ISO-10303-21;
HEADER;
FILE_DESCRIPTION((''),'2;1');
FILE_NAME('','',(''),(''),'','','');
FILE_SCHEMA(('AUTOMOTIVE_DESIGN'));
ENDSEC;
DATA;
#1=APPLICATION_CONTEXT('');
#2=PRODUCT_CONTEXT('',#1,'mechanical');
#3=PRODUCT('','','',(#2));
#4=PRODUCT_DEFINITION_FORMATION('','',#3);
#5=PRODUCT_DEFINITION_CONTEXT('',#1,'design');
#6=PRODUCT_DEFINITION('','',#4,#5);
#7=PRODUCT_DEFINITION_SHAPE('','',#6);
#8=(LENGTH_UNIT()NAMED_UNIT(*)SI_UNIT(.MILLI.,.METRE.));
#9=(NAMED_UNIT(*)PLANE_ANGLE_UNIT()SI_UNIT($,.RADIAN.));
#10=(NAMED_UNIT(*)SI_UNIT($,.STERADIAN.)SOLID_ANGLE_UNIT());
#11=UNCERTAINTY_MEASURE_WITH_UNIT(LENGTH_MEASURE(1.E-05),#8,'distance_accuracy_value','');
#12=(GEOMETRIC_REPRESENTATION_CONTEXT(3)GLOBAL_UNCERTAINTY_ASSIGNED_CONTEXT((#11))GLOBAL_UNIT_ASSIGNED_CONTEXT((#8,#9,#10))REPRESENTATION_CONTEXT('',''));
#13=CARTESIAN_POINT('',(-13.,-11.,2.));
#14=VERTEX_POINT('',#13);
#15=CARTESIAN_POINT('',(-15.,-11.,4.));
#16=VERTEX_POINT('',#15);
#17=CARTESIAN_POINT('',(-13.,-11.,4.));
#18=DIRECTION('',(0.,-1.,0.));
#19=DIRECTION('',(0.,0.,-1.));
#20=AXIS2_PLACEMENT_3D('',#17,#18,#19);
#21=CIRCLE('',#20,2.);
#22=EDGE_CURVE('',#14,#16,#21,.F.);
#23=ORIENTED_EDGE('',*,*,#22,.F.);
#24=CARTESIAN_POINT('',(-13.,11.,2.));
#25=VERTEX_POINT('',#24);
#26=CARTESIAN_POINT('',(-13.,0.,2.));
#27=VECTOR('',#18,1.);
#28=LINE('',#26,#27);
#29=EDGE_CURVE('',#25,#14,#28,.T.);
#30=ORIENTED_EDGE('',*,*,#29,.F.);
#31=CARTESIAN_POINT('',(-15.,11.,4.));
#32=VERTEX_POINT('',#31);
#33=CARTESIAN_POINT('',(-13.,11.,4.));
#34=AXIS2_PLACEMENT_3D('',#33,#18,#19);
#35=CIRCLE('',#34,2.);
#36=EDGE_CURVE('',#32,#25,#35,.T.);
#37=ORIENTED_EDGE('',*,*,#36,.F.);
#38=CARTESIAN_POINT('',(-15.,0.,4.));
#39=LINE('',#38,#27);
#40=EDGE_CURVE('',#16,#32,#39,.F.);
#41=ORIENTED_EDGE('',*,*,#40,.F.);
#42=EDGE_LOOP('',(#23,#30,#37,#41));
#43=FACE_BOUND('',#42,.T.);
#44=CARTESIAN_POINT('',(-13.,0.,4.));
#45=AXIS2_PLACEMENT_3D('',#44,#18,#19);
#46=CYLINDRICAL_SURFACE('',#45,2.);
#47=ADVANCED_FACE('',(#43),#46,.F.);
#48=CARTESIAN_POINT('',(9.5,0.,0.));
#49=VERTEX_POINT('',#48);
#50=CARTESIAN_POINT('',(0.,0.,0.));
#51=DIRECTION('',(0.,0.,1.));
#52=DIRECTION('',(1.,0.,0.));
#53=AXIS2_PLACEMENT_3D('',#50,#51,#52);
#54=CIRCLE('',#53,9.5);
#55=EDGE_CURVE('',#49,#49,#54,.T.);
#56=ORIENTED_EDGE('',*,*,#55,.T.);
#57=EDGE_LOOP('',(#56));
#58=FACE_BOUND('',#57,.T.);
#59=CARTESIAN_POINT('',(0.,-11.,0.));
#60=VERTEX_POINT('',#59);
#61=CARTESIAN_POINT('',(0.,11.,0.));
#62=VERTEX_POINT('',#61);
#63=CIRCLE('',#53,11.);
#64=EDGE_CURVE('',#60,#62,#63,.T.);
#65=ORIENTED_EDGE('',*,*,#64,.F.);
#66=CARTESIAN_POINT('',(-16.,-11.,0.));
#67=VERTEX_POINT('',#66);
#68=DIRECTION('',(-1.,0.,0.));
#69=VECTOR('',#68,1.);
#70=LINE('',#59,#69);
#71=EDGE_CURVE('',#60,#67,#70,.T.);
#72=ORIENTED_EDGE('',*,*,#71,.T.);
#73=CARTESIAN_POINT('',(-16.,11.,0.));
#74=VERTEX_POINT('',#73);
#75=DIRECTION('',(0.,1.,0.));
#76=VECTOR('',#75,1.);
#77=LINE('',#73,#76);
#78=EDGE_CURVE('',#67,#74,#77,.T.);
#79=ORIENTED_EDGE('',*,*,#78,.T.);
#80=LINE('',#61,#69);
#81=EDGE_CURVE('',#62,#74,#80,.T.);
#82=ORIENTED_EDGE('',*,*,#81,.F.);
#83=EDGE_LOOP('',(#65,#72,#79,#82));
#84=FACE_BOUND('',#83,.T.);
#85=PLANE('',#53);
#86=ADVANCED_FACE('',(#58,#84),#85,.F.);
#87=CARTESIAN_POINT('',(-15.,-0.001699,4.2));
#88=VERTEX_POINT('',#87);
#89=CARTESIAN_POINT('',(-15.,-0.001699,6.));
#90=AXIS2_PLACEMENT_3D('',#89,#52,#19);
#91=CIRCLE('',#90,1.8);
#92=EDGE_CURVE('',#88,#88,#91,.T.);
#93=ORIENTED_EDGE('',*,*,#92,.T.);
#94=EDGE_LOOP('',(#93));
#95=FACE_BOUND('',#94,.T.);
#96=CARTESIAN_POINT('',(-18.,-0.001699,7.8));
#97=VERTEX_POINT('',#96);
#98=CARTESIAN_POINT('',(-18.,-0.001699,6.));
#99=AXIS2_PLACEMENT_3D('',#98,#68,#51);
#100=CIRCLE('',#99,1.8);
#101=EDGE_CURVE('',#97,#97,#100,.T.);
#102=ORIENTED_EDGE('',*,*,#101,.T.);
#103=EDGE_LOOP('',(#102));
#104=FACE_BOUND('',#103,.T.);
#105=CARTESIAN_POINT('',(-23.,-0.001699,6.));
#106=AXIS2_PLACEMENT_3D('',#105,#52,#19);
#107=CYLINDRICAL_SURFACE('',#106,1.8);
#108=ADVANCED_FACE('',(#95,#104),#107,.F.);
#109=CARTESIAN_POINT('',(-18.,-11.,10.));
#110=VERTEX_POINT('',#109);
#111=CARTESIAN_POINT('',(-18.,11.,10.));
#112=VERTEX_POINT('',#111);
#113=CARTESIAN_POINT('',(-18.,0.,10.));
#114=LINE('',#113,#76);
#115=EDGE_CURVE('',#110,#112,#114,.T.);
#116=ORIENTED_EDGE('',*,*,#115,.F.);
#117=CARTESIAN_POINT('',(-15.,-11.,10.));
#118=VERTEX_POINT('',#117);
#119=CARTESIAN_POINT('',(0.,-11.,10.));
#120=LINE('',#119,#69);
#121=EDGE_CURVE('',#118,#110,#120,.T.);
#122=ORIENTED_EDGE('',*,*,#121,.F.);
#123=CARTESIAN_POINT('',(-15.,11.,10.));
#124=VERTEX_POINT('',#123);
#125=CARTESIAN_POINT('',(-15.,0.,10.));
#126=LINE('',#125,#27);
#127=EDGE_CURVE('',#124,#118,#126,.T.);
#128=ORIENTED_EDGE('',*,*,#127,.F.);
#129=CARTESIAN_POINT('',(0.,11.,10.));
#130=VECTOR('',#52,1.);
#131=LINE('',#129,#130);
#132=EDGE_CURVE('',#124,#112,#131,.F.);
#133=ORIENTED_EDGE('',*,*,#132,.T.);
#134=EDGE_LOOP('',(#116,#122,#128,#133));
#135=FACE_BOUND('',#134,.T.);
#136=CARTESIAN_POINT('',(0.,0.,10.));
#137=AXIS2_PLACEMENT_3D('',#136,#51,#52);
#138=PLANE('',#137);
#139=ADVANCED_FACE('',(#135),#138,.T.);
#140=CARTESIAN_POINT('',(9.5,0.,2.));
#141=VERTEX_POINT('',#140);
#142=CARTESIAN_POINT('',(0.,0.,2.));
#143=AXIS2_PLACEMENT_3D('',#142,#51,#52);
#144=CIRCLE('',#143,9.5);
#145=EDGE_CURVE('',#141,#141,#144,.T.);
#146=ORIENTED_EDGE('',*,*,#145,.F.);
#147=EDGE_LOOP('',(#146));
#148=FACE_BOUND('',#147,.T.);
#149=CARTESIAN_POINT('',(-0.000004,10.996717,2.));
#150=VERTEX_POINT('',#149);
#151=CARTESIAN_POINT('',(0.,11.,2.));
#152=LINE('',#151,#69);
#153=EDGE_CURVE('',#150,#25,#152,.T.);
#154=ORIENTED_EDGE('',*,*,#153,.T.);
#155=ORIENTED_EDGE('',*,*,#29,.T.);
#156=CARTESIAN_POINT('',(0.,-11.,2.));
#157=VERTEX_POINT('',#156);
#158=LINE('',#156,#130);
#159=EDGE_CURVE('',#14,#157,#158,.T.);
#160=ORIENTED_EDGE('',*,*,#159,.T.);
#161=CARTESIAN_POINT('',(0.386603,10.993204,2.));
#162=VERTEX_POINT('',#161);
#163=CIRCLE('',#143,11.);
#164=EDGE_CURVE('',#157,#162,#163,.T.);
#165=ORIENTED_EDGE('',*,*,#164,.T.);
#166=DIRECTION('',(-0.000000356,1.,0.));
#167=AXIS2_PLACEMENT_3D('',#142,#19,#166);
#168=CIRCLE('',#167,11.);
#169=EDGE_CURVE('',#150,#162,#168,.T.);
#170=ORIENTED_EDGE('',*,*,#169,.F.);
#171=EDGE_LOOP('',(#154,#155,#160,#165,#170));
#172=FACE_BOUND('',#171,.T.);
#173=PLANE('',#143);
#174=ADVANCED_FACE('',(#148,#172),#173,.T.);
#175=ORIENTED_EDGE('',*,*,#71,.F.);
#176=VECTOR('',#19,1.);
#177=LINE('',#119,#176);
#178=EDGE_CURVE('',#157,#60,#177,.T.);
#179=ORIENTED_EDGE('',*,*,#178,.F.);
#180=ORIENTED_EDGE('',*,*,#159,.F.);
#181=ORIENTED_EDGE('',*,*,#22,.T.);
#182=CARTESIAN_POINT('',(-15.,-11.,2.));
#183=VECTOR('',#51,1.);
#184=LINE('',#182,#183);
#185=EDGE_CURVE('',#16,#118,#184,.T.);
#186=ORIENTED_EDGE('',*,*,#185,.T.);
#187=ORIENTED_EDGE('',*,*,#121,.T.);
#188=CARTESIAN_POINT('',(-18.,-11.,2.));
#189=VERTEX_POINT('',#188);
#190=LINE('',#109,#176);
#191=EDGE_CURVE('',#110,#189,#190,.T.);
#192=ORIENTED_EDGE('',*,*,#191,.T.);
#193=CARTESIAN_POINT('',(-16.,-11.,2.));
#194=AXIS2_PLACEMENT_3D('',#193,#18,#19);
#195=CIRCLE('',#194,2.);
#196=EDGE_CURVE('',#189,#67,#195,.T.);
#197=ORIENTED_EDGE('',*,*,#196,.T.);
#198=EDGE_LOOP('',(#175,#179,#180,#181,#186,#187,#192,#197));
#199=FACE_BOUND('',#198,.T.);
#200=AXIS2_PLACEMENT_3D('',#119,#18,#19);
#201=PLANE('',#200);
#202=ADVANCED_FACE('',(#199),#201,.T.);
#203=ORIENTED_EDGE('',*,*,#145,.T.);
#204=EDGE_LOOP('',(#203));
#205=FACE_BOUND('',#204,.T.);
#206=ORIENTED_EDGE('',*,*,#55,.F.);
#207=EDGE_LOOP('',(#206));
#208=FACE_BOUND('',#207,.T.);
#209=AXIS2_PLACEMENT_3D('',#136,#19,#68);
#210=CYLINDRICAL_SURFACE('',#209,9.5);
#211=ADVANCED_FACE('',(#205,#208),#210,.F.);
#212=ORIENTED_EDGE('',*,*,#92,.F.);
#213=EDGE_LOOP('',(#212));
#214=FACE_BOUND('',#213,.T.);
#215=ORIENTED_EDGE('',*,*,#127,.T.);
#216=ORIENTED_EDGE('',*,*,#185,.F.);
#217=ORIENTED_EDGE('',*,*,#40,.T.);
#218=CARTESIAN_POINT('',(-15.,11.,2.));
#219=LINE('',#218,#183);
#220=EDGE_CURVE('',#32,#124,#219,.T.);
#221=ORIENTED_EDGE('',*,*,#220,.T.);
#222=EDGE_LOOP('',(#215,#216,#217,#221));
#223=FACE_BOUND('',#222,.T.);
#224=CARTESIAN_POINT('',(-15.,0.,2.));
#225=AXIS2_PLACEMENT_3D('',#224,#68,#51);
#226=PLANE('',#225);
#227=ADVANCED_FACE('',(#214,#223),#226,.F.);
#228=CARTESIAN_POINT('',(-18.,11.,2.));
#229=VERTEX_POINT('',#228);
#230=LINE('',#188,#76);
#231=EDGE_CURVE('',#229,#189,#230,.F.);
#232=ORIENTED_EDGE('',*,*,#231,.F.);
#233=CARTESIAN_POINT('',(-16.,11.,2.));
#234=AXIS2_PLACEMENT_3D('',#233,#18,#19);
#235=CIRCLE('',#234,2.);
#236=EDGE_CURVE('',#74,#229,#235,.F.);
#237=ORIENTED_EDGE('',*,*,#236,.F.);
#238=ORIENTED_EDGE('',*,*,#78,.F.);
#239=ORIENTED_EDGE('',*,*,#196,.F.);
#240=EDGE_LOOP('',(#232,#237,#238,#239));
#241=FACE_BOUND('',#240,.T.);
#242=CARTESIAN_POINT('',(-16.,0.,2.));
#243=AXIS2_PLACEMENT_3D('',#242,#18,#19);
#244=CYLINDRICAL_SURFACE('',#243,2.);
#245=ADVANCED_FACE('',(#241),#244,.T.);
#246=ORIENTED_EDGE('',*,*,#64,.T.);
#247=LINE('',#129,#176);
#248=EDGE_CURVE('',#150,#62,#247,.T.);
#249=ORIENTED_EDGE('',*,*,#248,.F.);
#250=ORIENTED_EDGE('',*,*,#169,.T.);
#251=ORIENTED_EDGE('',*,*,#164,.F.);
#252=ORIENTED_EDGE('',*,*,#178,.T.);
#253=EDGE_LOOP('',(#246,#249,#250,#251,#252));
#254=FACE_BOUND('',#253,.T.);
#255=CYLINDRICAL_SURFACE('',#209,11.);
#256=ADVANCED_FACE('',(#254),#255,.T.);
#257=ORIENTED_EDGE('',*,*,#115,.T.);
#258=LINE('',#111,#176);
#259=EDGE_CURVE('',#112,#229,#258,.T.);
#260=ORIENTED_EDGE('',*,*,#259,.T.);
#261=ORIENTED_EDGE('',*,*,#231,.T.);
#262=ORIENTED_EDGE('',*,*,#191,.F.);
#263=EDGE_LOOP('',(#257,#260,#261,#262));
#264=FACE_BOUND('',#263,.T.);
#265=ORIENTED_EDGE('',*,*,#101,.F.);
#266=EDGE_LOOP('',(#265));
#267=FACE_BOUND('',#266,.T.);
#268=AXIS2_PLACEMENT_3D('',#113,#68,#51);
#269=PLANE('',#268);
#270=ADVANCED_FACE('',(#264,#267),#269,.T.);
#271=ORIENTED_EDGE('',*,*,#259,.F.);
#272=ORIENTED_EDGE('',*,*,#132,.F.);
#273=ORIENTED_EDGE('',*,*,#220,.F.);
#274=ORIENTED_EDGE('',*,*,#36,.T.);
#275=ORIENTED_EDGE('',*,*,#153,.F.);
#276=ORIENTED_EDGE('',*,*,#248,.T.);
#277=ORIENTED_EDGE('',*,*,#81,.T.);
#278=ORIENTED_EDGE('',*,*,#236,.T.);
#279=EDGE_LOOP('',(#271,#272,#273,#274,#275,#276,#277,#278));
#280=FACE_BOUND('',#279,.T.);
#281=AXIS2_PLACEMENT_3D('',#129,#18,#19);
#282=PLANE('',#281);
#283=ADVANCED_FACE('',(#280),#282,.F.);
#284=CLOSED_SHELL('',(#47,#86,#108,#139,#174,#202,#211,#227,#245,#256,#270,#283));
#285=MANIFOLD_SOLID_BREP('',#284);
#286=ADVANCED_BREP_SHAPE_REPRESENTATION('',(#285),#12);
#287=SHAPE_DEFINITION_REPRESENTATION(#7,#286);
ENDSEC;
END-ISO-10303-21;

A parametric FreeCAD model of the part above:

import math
import FreeCAD as App
import Part
import Sketcher


def edges_at(feature, points):
    """Names of the edges that pass closest to the given points."""
    edges = feature.Shape.Edges
    near = lambda p: min(range(len(edges)), key=lambda i: edges[i].distToShape(Part.Vertex(*p))[0])
    return sorted({f"Edge{near(p) + 1}" for p in points})

doc = App.newDocument("Part")
body = doc.addObject("PartDesign::Body", "Body")

sketch1 = body.newObject("Sketcher::SketchObject", "Sketch")
sketch1.AttachmentSupport = (doc.getObject("XY_Plane"), [""])
sketch1.MapMode = "FlatFace"
sketch1.addGeometry(Part.LineSegment(App.Vector(-18, -11, 0), App.Vector(0, -11, 0)), False)
sketch1.addGeometry(Part.ArcOfCircle(Part.Circle(App.Vector(0, 0, 0), App.Vector(0, 0, 1), 11), math.radians(-90), math.radians(0)), False)
sketch1.addGeometry(Part.ArcOfCircle(Part.Circle(App.Vector(0, 0, 0), App.Vector(0, 0, 1), 11), math.radians(0), math.radians(90)), False)
sketch1.addGeometry(Part.LineSegment(App.Vector(0, 11, 0), App.Vector(-18, 11, 0)), False)
sketch1.addGeometry(Part.LineSegment(App.Vector(-18, 11, 0), App.Vector(-18, -11, 0)), False)
sketch1.addGeometry(Part.ArcOfCircle(Part.Circle(App.Vector(0, 0, 0), App.Vector(0, 0, 1), 9.5), math.radians(0), math.radians(90)), False)
sketch1.addGeometry(Part.ArcOfCircle(Part.Circle(App.Vector(0, 0, 0), App.Vector(0, 0, 1), 9.5), math.radians(-90), math.radians(0)), False)
sketch1.addGeometry(Part.ArcOfCircle(Part.Circle(App.Vector(0, 0, 0), App.Vector(0, 0, 1), 9.5), math.radians(-180), math.radians(-90)), False)
sketch1.addGeometry(Part.ArcOfCircle(Part.Circle(App.Vector(0, 0, 0), App.Vector(0, 0, 1), 9.5), math.radians(90), math.radians(180)), False)
sketch1.addConstraint(Sketcher.Constraint("Tangent", 0, 2, 1, 1))
sketch1.addConstraint(Sketcher.Constraint("Tangent", 1, 2, 2, 1))
sketch1.addConstraint(Sketcher.Constraint("Tangent", 2, 2, 3, 1))
sketch1.addConstraint(Sketcher.Constraint("Coincident", 3, 2, 4, 1))
sketch1.addConstraint(Sketcher.Constraint("Coincident", 4, 2, 0, 1))
sketch1.addConstraint(Sketcher.Constraint("Tangent", 5, 1, 6, 2))
sketch1.addConstraint(Sketcher.Constraint("Tangent", 6, 1, 7, 2))
sketch1.addConstraint(Sketcher.Constraint("Tangent", 7, 1, 8, 2))
sketch1.addConstraint(Sketcher.Constraint("Tangent", 8, 1, 5, 2))
sketch1.addConstraint(Sketcher.Constraint("Horizontal", 0))
sketch1.addConstraint(Sketcher.Constraint("Horizontal", 3))
sketch1.addConstraint(Sketcher.Constraint("Vertical", 4))
sketch1.addConstraint(Sketcher.Constraint("Coincident", 1, 3, -1, 1))
sketch1.addConstraint(Sketcher.Constraint("Coincident", 5, 3, -1, 1))
sketch1.addConstraint(Sketcher.Constraint("Equal", 1, 2))
sketch1.addConstraint(Sketcher.Constraint("Equal", 5, 6))
sketch1.addConstraint(Sketcher.Constraint("PointOnObject", 1, 2, -1))
sketch1.addConstraint(Sketcher.Constraint("PointOnObject", 5, 1, -1))
sketch1.addConstraint(Sketcher.Constraint("PointOnObject", 6, 1, -2))
sketch1.addConstraint(Sketcher.Constraint("PointOnObject", 7, 1, -1))
sketch1.addConstraint(Sketcher.Constraint("PointOnObject", 8, 1, -2))
sketch1.addConstraint(Sketcher.Constraint("Radius", 1, 11.0))
sketch1.addConstraint(Sketcher.Constraint("Radius", 5, 9.5))
sketch1.addConstraint(Sketcher.Constraint("DistanceX", 0, 1, 0, 2, 18.0))
pad1 = body.newObject("PartDesign::Pad", "Pad")
pad1.Profile = sketch1
pad1.Length = 10

sketch2 = body.newObject("Sketcher::SketchObject", "Sketch001")
sketch2.AttachmentSupport = (doc.getObject("XY_Plane"), [""])
sketch2.MapMode = "FlatFace"
sketch2.AttachmentOffset = App.Placement(App.Vector(0, 0, 2), App.Rotation())
sketch2.addGeometry(Part.LineSegment(App.Vector(-15, -11, 0), App.Vector(0, -11, 0)), False)
sketch2.addGeometry(Part.ArcOfCircle(Part.Circle(App.Vector(0, 0, 0), App.Vector(0, 0, 1), 11), math.radians(-90), math.radians(90)), False)
sketch2.addGeometry(Part.LineSegment(App.Vector(0, 11, 0), App.Vector(-15, 11, 0)), False)
sketch2.addGeometry(Part.LineSegment(App.Vector(-15, 11, 0), App.Vector(-15, -11, 0)), False)
sketch2.addGeometry(Part.Circle(App.Vector(0, 0, 0), App.Vector(0, 0, 1), 9.5), False)
sketch2.addConstraint(Sketcher.Constraint("Tangent", 0, 2, 1, 1))
sketch2.addConstraint(Sketcher.Constraint("Tangent", 1, 2, 2, 1))
sketch2.addConstraint(Sketcher.Constraint("Coincident", 2, 2, 3, 1))
sketch2.addConstraint(Sketcher.Constraint("Coincident", 3, 2, 0, 1))
sketch2.addConstraint(Sketcher.Constraint("Horizontal", 0))
sketch2.addConstraint(Sketcher.Constraint("Horizontal", 2))
sketch2.addConstraint(Sketcher.Constraint("Vertical", 3))
sketch2.addConstraint(Sketcher.Constraint("Coincident", 1, 3, -1, 1))
sketch2.addConstraint(Sketcher.Constraint("Coincident", 4, 3, -1, 1))
sketch2.addConstraint(Sketcher.Constraint("Diameter", 4, 19.0))
sketch2.addConstraint(Sketcher.Constraint("Radius", 1, 11.0))
sketch2.addConstraint(Sketcher.Constraint("DistanceX", 0, 1, 0, 2, 15.0))
pocket1 = body.newObject("PartDesign::Pocket", "Pocket")
pocket1.Profile = sketch2
pocket1.Length = 8
pocket1.Reversed = True

sketch3 = body.newObject("Sketcher::SketchObject", "Sketch002")
sketch3.AttachmentSupport = (doc.getObject("YZ_Plane"), [""])
sketch3.MapMode = "FlatFace"
sketch3.AttachmentOffset = App.Placement(App.Vector(0, 0, -15), App.Rotation())
sketch3.addGeometry(Part.Circle(App.Vector(-0.001699, 6, 0), App.Vector(0, 0, 1), 1.8), False)
sketch3.addConstraint(Sketcher.Constraint("Diameter", 0, 3.6))
sketch3.addConstraint(Sketcher.Constraint("DistanceY", -1, 1, 0, 3, 6.0))
sketch3.addConstraint(Sketcher.Constraint("DistanceX", 0, 3, -1, 1, 0.001699))
pocket2 = body.newObject("PartDesign::Pocket", "Pocket001")
pocket2.Profile = sketch3
pocket2.Length = 8
doc.recompute()

fillet = body.newObject("PartDesign::Fillet", "Fillet")
fillet.Base = (pocket2, edges_at(pocket2, [(-15, 0, 2), (-18, 0, 0)]))
fillet.Radius = 2

doc.recompute()
